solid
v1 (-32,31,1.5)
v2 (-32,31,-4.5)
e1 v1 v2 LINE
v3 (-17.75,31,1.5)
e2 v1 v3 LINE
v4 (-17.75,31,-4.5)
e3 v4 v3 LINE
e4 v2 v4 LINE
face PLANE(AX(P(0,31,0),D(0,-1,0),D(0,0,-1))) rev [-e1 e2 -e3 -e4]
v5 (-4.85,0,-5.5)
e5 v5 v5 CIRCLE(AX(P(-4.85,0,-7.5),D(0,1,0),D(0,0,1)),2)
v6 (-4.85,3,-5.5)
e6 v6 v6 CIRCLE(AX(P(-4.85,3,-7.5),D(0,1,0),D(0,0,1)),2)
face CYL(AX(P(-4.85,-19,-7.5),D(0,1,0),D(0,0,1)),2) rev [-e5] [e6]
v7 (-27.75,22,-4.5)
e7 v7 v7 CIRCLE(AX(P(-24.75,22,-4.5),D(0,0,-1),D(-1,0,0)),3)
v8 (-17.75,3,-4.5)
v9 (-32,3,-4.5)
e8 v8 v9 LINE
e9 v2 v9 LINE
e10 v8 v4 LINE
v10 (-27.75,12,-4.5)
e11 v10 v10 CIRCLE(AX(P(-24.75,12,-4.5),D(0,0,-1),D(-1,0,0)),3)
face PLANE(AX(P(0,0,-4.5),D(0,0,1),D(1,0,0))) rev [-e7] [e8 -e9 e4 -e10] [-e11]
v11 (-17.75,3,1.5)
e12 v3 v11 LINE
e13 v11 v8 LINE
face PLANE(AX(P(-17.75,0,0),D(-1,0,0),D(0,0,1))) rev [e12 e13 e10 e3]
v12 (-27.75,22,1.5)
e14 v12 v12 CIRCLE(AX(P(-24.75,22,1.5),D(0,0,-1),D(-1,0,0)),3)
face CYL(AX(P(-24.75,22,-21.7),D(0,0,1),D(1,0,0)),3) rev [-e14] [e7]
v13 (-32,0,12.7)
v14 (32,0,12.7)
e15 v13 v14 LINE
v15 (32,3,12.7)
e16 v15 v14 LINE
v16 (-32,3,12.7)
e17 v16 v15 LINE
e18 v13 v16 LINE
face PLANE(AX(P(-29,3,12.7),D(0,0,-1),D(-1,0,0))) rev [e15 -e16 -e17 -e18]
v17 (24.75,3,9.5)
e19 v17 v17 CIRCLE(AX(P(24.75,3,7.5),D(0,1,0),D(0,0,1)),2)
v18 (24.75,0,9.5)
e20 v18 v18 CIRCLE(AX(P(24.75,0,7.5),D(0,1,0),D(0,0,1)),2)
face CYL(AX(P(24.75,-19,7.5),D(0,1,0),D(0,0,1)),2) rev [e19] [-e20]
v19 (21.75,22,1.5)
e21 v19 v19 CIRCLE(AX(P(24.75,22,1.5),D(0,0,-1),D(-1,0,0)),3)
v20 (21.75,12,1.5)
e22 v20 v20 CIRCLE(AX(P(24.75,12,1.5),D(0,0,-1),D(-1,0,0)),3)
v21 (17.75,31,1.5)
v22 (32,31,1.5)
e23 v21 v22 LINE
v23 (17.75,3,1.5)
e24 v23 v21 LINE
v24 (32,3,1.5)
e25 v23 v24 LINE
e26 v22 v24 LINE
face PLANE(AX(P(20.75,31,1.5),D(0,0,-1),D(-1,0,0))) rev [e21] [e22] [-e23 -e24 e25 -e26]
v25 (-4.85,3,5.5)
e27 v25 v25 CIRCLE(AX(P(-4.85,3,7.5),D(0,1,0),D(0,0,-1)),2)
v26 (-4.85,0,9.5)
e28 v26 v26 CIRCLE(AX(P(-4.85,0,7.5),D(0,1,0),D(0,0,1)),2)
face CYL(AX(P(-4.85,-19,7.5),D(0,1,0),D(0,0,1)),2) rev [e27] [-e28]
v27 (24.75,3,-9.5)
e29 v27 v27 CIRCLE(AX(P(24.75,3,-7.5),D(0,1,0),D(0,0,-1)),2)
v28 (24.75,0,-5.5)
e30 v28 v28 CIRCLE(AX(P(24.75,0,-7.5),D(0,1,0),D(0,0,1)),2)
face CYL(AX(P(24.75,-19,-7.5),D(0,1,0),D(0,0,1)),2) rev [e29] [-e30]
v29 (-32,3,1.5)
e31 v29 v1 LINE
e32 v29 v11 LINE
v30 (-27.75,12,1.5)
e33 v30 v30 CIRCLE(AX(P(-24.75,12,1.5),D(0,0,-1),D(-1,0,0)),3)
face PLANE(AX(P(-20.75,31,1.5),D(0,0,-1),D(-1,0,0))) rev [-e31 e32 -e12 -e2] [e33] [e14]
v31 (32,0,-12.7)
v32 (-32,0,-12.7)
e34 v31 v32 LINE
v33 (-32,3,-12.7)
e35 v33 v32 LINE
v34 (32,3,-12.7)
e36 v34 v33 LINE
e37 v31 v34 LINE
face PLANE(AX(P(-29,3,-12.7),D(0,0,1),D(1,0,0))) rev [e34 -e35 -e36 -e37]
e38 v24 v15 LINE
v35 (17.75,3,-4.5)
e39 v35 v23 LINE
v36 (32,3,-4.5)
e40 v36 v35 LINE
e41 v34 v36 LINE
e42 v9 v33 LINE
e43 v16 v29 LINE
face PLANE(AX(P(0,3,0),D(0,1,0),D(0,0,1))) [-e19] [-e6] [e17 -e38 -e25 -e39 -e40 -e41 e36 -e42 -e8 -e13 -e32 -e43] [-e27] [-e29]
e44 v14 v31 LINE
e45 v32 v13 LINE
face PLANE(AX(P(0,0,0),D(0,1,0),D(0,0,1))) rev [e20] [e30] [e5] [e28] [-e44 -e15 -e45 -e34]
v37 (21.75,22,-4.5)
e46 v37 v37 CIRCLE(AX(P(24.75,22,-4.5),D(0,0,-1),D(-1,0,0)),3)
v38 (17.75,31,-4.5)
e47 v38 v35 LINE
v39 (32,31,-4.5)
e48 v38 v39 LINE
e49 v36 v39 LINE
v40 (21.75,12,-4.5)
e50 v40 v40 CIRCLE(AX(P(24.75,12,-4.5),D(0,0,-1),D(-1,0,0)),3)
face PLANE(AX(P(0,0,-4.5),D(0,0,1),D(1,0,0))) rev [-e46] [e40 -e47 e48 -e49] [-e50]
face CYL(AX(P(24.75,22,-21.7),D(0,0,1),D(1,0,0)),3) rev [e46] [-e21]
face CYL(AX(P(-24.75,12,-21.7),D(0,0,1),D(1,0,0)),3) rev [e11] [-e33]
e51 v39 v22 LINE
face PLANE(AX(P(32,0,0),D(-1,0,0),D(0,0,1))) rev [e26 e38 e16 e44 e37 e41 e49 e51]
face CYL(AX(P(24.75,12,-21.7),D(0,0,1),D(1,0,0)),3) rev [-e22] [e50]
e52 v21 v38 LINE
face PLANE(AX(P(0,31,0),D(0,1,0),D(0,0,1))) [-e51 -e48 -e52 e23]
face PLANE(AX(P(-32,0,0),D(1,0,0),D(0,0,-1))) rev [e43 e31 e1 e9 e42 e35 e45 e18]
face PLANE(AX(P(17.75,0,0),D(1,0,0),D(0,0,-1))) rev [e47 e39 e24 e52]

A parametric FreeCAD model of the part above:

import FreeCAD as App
import Part
import Sketcher


def add_polygon(sketch, points):
    """Adds a closed chain of lines whose ends are joined by coincident constraints."""
    first, n = sketch.GeometryCount, len(points)
    for a, b in zip(points, points[1:] + points[:1]):
        sketch.addGeometry(Part.LineSegment(App.Vector(*a, 0), App.Vector(*b, 0)), False)
    for i in range(n):
        sketch.addConstraint(Sketcher.Constraint("Coincident", first + i, 2, first + (i + 1) % n, 1))

doc = App.newDocument("Part")
body = doc.addObject("PartDesign::Body", "Body")

# Sketch on XZ plane
sketch1 = body.newObject("Sketcher::SketchObject", "Sketch")
sketch1.AttachmentSupport = (doc.getObject("XZ_Plane"), [""])
sketch1.MapMode = "FlatFace"
add_polygon(sketch1, [(-29, -13), (-29, 13), (29, 13), (29, -13)])  # lines 0-3
sketch1.addConstraint([
    Sketcher.Constraint("Vertical", 0),
    Sketcher.Constraint("Horizontal", 1),
    Sketcher.Constraint("Vertical", 2),
    Sketcher.Constraint("Horizontal", 3),
    Sketcher.Constraint("Symmetric", 0, 2, 2, 2, -1, 1),
    Sketcher.Constraint("DistanceX", 1, 1, 1, 2, 58.0),
    Sketcher.Constraint("DistanceY", 0, 1, 0, 2, 25.4),
])
pad1 = body.newObject("PartDesign::Pad", "Pad")
pad1.Profile = sketch1
pad1.Length = 3
pad1.Reversed = True

# Sketch on XZ plane
sketch2 = body.newObject("Sketcher::SketchObject", "Sketch001")
sketch2.AttachmentSupport = (doc.getObject("XZ_Plane"), [""])
sketch2.MapMode = "FlatFace"
sketch2.AttachmentOffset = App.Placement(App.Vector(0, 0, -3), App.Rotation())
add_polygon(sketch2, [(-28.8, -12.7), (-28.8, -9.7), (-20.8, -9.7), (-20.8, -12.7)])  # lines 0-3
add_polygon(sketch2, [(20.8, -12.7), (20.8, -9.7), (28.8, -9.7), (28.8, -12.7)])  # lines 4-7
add_polygon(sketch2, [(-28.8, -1.5), (-28.8, 1.5), (-20.8, 1.5), (-20.8, -1.5)])  # lines 8-11
add_polygon(sketch2, [(20.8, -1.5), (20.8, 1.5), (28.8, 1.5), (28.8, -1.5)])  # lines 12-15
sketch2.addConstraint([
    Sketcher.Constraint("Vertical", 0),
    Sketcher.Constraint("Horizontal", 1),
    Sketcher.Constraint("Vertical", 2),
    Sketcher.Constraint("Horizontal", 3),
    Sketcher.Constraint("Vertical", 4),
    Sketcher.Constraint("Horizontal", 5),
    Sketcher.Constraint("Vertical", 6),
    Sketcher.Constraint("Horizontal", 7),
    Sketcher.Constraint("Vertical", 8),
    Sketcher.Constraint("Horizontal", 9),
    Sketcher.Constraint("Vertical", 10),
    Sketcher.Constraint("Horizontal", 11),
    Sketcher.Constraint("Vertical", 12),
    Sketcher.Constraint("Horizontal", 13),
    Sketcher.Constraint("Vertical", 14),
    Sketcher.Constraint("Horizontal", 15),
    Sketcher.Constraint("Symmetric", 10, 2, 12, 2, -1, 1),
    Sketcher.Constraint("Symmetric", 8, 2, 14, 2, -1, 1),
    Sketcher.Constraint("Symmetric", 1, 2, 4, 2, -2),
    Sketcher.Constraint("Symmetric", 3, 2, 6, 2, -2),
    Sketcher.Constraint("Horizontal", 9, 2, 12, 2),
    Sketcher.Constraint("Vertical", 3, 2, 8, 2),
    Sketcher.Constraint("Vertical", 2, 2, 9, 2),
    Sketcher.Constraint("Equal", 6, 8),
    Sketcher.Constraint("DistanceX", 1, 1, 1, 2, 8.0),
    Sketcher.Constraint("DistanceY", 0, 1, 0, 2, 3.0),
    Sketcher.Constraint("DistanceY", 0, 2, -1, 1, 9.7),
    Sketcher.Constraint("DistanceX", 1, 2, 4, 2, 41.5),
])
pad2 = body.newObject("PartDesign::Pad", "Pad001")
pad2.Profile = sketch2
pad2.Length = 28
pad2.Reversed = True

# Sketch on XY plane
sketch3 = body.newObject("Sketcher::SketchObject", "Sketch002")
sketch3.AttachmentSupport = (doc.getObject("XY_Plane"), [""])
sketch3.MapMode = "FlatFace"
sketch3.AttachmentOffset = App.Placement(App.Vector(0, 0, -9.7), App.Rotation())
sketch3.addGeometry([
    Part.Circle(App.Vector(-24.8, 12, 0), App.Vector(0, 0, 1), 3),
    Part.Circle(App.Vector(-24.8, 22, 0), App.Vector(0, 0, 1), 3),
    Part.Circle(App.Vector(24.8, 12, 0), App.Vector(0, 0, 1), 3),
    Part.Circle(App.Vector(24.8, 22, 0), App.Vector(0, 0, 1), 3),
], False)
sketch3.addConstraint([
    Sketcher.Constraint("Equal", 0, 1),
    Sketcher.Constraint("Equal", 1, 2),
    Sketcher.Constraint("Equal", 2, 3),
    Sketcher.Constraint("Symmetric", 0, 3, 2, 3, -2),
    Sketcher.Constraint("Symmetric", 1, 3, 3, 3, -2),
    Sketcher.Constraint("Vertical", 0, 3, 1, 3),
    Sketcher.Constraint("Diameter", 0, 6.0),
    Sketcher.Constraint("DistanceY", -1, 1, 0, 3, 12.0),
    Sketcher.Constraint("DistanceY", -1, 1, 1, 3, 22.0),
    Sketcher.Constraint("DistanceX", 0, 3, 2, 3, 49.5),
])
pocket1 = body.newObject("PartDesign::Pocket", "Pocket")
pocket1.Profile = sketch3
pocket1.Length = 24
pocket1.Midplane = True

# Sketch on XZ plane
sketch4 = body.newObject("Sketcher::SketchObject", "Sketch003")
sketch4.AttachmentSupport = (doc.getObject("XZ_Plane"), [""])
sketch4.MapMode = "FlatFace"
sketch4.AttachmentOffset = App.Placement(App.Vector(0, 0, -3), App.Rotation())
sketch4.addGeometry([
    Part.Circle(App.Vector(24.8, 7.5, 0), App.Vector(0, 0, 1), 2),
    Part.Circle(App.Vector(24.8, -7.5, 0), App.Vector(0, 0, 1), 2),
    Part.Circle(App.Vector(-4.8, -7.5, 0), App.Vector(0, 0, 1), 2),
    Part.Circle(App.Vector(-4.8, 7.5, 0), App.Vector(0, 0, 1), 2),
], False)
sketch4.addConstraint([
    Sketcher.Constraint("Equal", 0, 1),
    Sketcher.Constraint("Equal", 1, 2),
    Sketcher.Constraint("Equal", 2, 3),
    Sketcher.Constraint("Symmetric", 0, 3, 1, 3, -1),
    Sketcher.Constraint("Symmetric", 2, 3, 3, 3, -1),
    Sketcher.Constraint("Horizontal", 1, 3, 2, 3),
    Sketcher.Constraint("Diameter", 0, 4.0),
    Sketcher.Constraint("DistanceY", 1, 3, 0, 3, 15.0),
    Sketcher.Constraint("DistanceX", 2, 3, 1, 3, 29.6),
    Sketcher.Constraint("DistanceX", -1, 1, 0, 3, 24.75),
])
pocket2 = body.newObject("PartDesign::Pocket", "Pocket001")
pocket2.Profile = sketch4
pocket2.Length = 22
pocket2.Reversed = True

# Sketch on XZ plane
sketch5 = body.newObject("Sketcher::SketchObject", "Sketch004")
sketch5.AttachmentSupport = (doc.getObject("XZ_Plane"), [""])
sketch5.MapMode = "FlatFace"
sketch5.AttachmentOffset = App.Placement(App.Vector(0, 0, -31), App.Rotation())
add_polygon(sketch5, [(-28.8, -12.7), (-28.8, -9.7), (-20.8, -9.7), (-20.8, -12.7)])  # lines 0-3
add_polygon(sketch5, [(20.8, -12.7), (20.8, -9.7), (28.8, -9.7), (28.8, -12.7)])  # lines 4-7
sketch5.addConstraint([
    Sketcher.Constraint("Vertical", 0),
    Sketcher.Constraint("Horizontal", 1),
    Sketcher.Constraint("Vertical", 2),
    Sketcher.Constraint("Horizontal", 3),
    Sketcher.Constraint("Vertical", 4),
    Sketcher.Constraint("Horizontal", 5),
    Sketcher.Constraint("Vertical", 6),
    Sketcher.Constraint("Horizontal", 7),
    Sketcher.Constraint("Symmetric", 1, 2, 4, 2, -2),
    Sketcher.Constraint("Symmetric", 3, 2, 6, 2, -2),
    Sketcher.Constraint("DistanceX", 1, 1, 1, 2, 8.0),
    Sketcher.Constraint("DistanceY", 0, 1, 0, 2, 3.0),
    Sketcher.Constraint("DistanceY", 0, 2, -1, 1, 9.7),
    Sketcher.Constraint("DistanceX", 1, 2, 4, 2, 41.5),
])
pocket3 = body.newObject("PartDesign::Pocket", "Pocket002")
pocket3.Profile = sketch5
pocket3.Length = 28
pocket3.Reversed = True

# Sketch on XY plane
sketch6 = body.newObject("Sketcher::SketchObject", "Sketch005")
sketch6.AttachmentSupport = (doc.getObject("XY_Plane"), [""])
sketch6.MapMode = "FlatFace"
sketch6.AttachmentOffset = App.Placement(App.Vector(0, 0, -1.5), App.Rotation())
add_polygon(sketch6, [(28.8, 31), (28.8, 3), (20.8, 3), (20.8, 31)])  # lines 0-3
sketch6.addGeometry(Part.Circle(App.Vector(24.8, 12, 0), App.Vector(0, 0, 1), 3), False)  # 4
sketch6.addGeometry(Part.Circle(App.Vector(24.8, 22, 0), App.Vector(0, 0, 1), 3), False)  # 5
add_polygon(sketch6, [(-20.8, 31), (-20.8, 3), (-28.8, 3), (-28.8, 31)])  # lines 6-9
sketch6.addGeometry(Part.Circle(App.Vector(-24.8, 12, 0), App.Vector(0, 0, 1), 3), False)  # 10
sketch6.addGeometry(Part.Circle(App.Vector(-24.8, 22, 0), App.Vector(0, 0, 1), 3), False)  # 11
sketch6.addConstraint([
    Sketcher.Constraint("Vertical", 0),
    Sketcher.Constraint("Horizontal", 1),
    Sketcher.Constraint("Vertical", 2),
    Sketcher.Constraint("Horizontal", 3),
    Sketcher.Constraint("Vertical", 6),
    Sketcher.Constraint("Horizontal", 7),
    Sketcher.Constraint("Vertical", 8),
    Sketcher.Constraint("Horizontal", 9),
    Sketcher.Constraint("Equal", 4, 5),
    Sketcher.Constraint("Equal", 5, 10),
    Sketcher.Constraint("Equal", 10, 11),
    Sketcher.Constraint("Symmetric", 4, 3, 10, 3, -2),
    Sketcher.Constraint("Symmetric", 5, 3, 11, 3, -2),
    Sketcher.Constraint("Symmetric", 1, 2, 6, 2, -2),
    Sketcher.Constraint("Symmetric", 3, 2, 8, 2, -2),
    Sketcher.Constraint("Vertical", 4, 3, 5, 3),
    Sketcher.Constraint("Diameter", 4, 6.0),
    Sketcher.Constraint("DistanceX", 1, 2, 1, 1, 8.0),
    Sketcher.Constraint("DistanceY", 0, 2, 0, 1, 28.0),
    Sketcher.Constraint("DistanceY", -1, 1, 4, 3, 12.0),
    Sketcher.Constraint("DistanceY", -1, 1, 5, 3, 22.0),
    Sketcher.Constraint("DistanceY", -1, 1, 0, 2, 3.0),
    Sketcher.Constraint("DistanceX", 4, 3, 0, 2, 4.0),
    Sketcher.Constraint("DistanceX", 10, 3, 4, 3, 49.5),
])
pad3 = body.newObject("PartDesign::Pad", "Pad002")
pad3.Profile = sketch6
pad3.Length = 3
pad3.Reversed = True

# Sketch on YZ plane
sketch7 = body.newObject("Sketcher::SketchObject", "Sketch006")
sketch7.AttachmentSupport = (doc.getObject("YZ_Plane"), [""])
sketch7.MapMode = "FlatFace"
sketch7.AttachmentOffset = App.Placement(App.Vector(0, 0, 20.75), App.Rotation())
add_polygon(sketch7, [(31, -4), (3, -4), (3, 2), (31, 2)])  # lines 0-3
sketch7.addConstraint([
    Sketcher.Constraint("Horizontal", 0),
    Sketcher.Constraint("Vertical", 1),
    Sketcher.Constraint("Horizontal", 2),
    Sketcher.Constraint("Vertical", 3),
    Sketcher.Constraint("DistanceX", 0, 2, 0, 1, 28.0),
    Sketcher.Constraint("DistanceY", 1, 1, 1, 2, 6.0),
    Sketcher.Constraint("DistanceX", -1, 1, 0, 2, 3.0),
    Sketcher.Constraint("DistanceY", 0, 2, -1, 1, 4.5),
])
pad4 = body.newObject("PartDesign::Pad", "Pad003")
pad4.Profile = sketch7
pad4.Length = 3
pad4.Reversed = True

# Sketch on YZ plane
sketch8 = body.newObject("Sketcher::SketchObject", "Sketch007")
sketch8.AttachmentSupport = (doc.getObject("YZ_Plane"), [""])
sketch8.MapMode = "FlatFace"
sketch8.AttachmentOffset = App.Placement(App.Vector(0, 0, -20.75), App.Rotation())
add_polygon(sketch8, [(31, 2), (3, 2), (3, -4), (31, -4)])  # lines 0-3
sketch8.addConstraint([
    Sketcher.Constraint("Horizontal", 0),
    Sketcher.Constraint("Vertical", 1),
    Sketcher.Constraint("Horizontal", 2),
    Sketcher.Constraint("Vertical", 3),
    Sketcher.Constraint("DistanceX", 0, 2, 0, 1, 28.0),
    Sketcher.Constraint("DistanceY", 1, 2, 1, 1, 6.0),
    Sketcher.Constraint("DistanceX", -1, 1, 0, 2, 3.0),
    Sketcher.Constraint("DistanceY", -1, 1, 0, 2, 1.5),
])
pad5 = body.newObject("PartDesign::Pad", "Pad004")
pad5.Profile = sketch8
pad5.Length = 3

# Sketch on YZ plane
sketch9 = body.newObject("Sketcher::SketchObject", "Sketch008")
sketch9.AttachmentSupport = (doc.getObject("YZ_Plane"), [""])
sketch9.MapMode = "FlatFace"
sketch9.AttachmentOffset = App.Placement(App.Vector(0, 0, 28.75), App.Rotation())
add_polygon(sketch9, [(31, 2), (3, 2), (3, -4), (31, -4)])  # lines 0-3
sketch9.addConstraint([
    Sketcher.Constraint("Horizontal", 0),
    Sketcher.Constraint("Vertical", 1),
    Sketcher.Constraint("Horizontal", 2),
    Sketcher.Constraint("Vertical", 3),
    Sketcher.Constraint("DistanceX", 0, 2, 0, 1, 28.0),
    Sketcher.Constraint("DistanceY", 1, 2, 1, 1, 6.0),
    Sketcher.Constraint("DistanceX", -1, 1, 0, 2, 3.0),
    Sketcher.Constraint("DistanceY", -1, 1, 0, 2, 1.5),
])
pad6 = body.newObject("PartDesign::Pad", "Pad005")
pad6.Profile = sketch9
pad6.Length = 0.25

# Sketch on YZ plane
sketch10 = body.newObject("Sketcher::SketchObject", "Sketch009")
sketch10.AttachmentSupport = (doc.getObject("YZ_Plane"), [""])
sketch10.MapMode = "FlatFace"
sketch10.AttachmentOffset = App.Placement(App.Vector(0, 0, -28.75), App.Rotation())
add_polygon(sketch10, [(31, -4), (3, -4), (3, 2), (31, 2)])  # lines 0-3
sketch10.addConstraint([
    Sketcher.Constraint("Horizontal", 0),
    Sketcher.Constraint("Vertical", 1),
    Sketcher.Constraint("Horizontal", 2),
    Sketcher.Constraint("Vertical", 3),
    Sketcher.Constraint("DistanceX", 0, 2, 0, 1, 28.0),
    Sketcher.Constraint("DistanceY", 1, 1, 1, 2, 6.0),
    Sketcher.Constraint("DistanceX", -1, 1, 0, 2, 3.0),
    Sketcher.Constraint("DistanceY", 0, 2, -1, 1, 4.5),
])
pad7 = body.newObject("PartDesign::Pad", "Pad006")
pad7.Profile = sketch10
pad7.Length = 0.25
pad7.Reversed = True

# Sketch on YZ plane
sketch11 = body.newObject("Sketcher::SketchObject", "Sketch010")
sketch11.AttachmentSupport = (doc.getObject("YZ_Plane"), [""])
sketch11.MapMode = "FlatFace"
sketch11.AttachmentOffset = App.Placement(App.Vector(0, 0, -29), App.Rotation())
add_polygon(sketch11, [(31, 1.5), (31, -4.5), (3, -4.5), (3, -12.7), (0, -12.7), (0, 12.7), (3, 12.7), (3, 1.5)])  # lines 0-7
sketch11.addConstraint([
    Sketcher.Constraint("Vertical", 0),
    Sketcher.Constraint("Horizontal", 1),
    Sketcher.Constraint("Vertical", 2),
    Sketcher.Constraint("Horizontal", 3),
    Sketcher.Constraint("Vertical", 4),
    Sketcher.Constraint("Horizontal", 5),
    Sketcher.Constraint("Vertical", 6),
    Sketcher.Constraint("Horizontal", 7),
    Sketcher.Constraint("Symmetric", 3, 2, 4, 2, -1, 1),
    Sketcher.Constraint("Vertical", 2, 2, 5, 2),
    Sketcher.Constraint("DistanceX", 1, 2, 1, 1, 28.0),
    Sketcher.Constraint("DistanceX", 3, 2, 3, 1, 3.0),
    Sketcher.Constraint("DistanceY", 0, 2, 0, 1, 6.0),
    Sketcher.Constraint("DistanceY", 2, 2, 2, 1, 8.2),
    Sketcher.Constraint("DistanceY", 4, 1, 4, 2, 25.4),
])
pad8 = body.newObject("PartDesign::Pad", "Pad007")
pad8.Profile = sketch11
pad8.Length = 3
pad8.Reversed = True

# Sketch on YZ plane
sketch12 = body.newObject("Sketcher::SketchObject", "Sketch011")
sketch12.AttachmentSupport = (doc.getObject("YZ_Plane"), [""])
sketch12.MapMode = "FlatFace"
sketch12.AttachmentOffset = App.Placement(App.Vector(0, 0, 29), App.Rotation())
add_polygon(sketch12, [(31, -4.5), (31, 1.5), (3, 1.5), (3, 12.7), (0, 12.7), (0, -12.7), (3, -12.7), (3, -4.5)])  # lines 0-7
sketch12.addConstraint([
    Sketcher.Constraint("Vertical", 0),
    Sketcher.Constraint("Horizontal", 1),
    Sketcher.Constraint("Vertical", 2),
    Sketcher.Constraint("Horizontal", 3),
    Sketcher.Constraint("Vertical", 4),
    Sketcher.Constraint("Horizontal", 5),
    Sketcher.Constraint("Vertical", 6),
    Sketcher.Constraint("Horizontal", 7),
    Sketcher.Constraint("Symmetric", 3, 2, 4, 2, -1, 1),
    Sketcher.Constraint("Vertical", 2, 2, 5, 2),
    Sketcher.Constraint("DistanceX", 1, 2, 1, 1, 28.0),
    Sketcher.Constraint("DistanceX", 3, 2, 3, 1, 3.0),
    Sketcher.Constraint("DistanceY", 0, 1, 0, 2, 6.0),
    Sketcher.Constraint("DistanceY", 2, 1, 2, 2, 11.2),
    Sketcher.Constraint("DistanceY", 4, 2, 4, 1, 25.4),
])
pad9 = body.newObject("PartDesign::Pad", "Pad008")
pad9.Profile = sketch12
pad9.Length = 3

doc.recompute()
